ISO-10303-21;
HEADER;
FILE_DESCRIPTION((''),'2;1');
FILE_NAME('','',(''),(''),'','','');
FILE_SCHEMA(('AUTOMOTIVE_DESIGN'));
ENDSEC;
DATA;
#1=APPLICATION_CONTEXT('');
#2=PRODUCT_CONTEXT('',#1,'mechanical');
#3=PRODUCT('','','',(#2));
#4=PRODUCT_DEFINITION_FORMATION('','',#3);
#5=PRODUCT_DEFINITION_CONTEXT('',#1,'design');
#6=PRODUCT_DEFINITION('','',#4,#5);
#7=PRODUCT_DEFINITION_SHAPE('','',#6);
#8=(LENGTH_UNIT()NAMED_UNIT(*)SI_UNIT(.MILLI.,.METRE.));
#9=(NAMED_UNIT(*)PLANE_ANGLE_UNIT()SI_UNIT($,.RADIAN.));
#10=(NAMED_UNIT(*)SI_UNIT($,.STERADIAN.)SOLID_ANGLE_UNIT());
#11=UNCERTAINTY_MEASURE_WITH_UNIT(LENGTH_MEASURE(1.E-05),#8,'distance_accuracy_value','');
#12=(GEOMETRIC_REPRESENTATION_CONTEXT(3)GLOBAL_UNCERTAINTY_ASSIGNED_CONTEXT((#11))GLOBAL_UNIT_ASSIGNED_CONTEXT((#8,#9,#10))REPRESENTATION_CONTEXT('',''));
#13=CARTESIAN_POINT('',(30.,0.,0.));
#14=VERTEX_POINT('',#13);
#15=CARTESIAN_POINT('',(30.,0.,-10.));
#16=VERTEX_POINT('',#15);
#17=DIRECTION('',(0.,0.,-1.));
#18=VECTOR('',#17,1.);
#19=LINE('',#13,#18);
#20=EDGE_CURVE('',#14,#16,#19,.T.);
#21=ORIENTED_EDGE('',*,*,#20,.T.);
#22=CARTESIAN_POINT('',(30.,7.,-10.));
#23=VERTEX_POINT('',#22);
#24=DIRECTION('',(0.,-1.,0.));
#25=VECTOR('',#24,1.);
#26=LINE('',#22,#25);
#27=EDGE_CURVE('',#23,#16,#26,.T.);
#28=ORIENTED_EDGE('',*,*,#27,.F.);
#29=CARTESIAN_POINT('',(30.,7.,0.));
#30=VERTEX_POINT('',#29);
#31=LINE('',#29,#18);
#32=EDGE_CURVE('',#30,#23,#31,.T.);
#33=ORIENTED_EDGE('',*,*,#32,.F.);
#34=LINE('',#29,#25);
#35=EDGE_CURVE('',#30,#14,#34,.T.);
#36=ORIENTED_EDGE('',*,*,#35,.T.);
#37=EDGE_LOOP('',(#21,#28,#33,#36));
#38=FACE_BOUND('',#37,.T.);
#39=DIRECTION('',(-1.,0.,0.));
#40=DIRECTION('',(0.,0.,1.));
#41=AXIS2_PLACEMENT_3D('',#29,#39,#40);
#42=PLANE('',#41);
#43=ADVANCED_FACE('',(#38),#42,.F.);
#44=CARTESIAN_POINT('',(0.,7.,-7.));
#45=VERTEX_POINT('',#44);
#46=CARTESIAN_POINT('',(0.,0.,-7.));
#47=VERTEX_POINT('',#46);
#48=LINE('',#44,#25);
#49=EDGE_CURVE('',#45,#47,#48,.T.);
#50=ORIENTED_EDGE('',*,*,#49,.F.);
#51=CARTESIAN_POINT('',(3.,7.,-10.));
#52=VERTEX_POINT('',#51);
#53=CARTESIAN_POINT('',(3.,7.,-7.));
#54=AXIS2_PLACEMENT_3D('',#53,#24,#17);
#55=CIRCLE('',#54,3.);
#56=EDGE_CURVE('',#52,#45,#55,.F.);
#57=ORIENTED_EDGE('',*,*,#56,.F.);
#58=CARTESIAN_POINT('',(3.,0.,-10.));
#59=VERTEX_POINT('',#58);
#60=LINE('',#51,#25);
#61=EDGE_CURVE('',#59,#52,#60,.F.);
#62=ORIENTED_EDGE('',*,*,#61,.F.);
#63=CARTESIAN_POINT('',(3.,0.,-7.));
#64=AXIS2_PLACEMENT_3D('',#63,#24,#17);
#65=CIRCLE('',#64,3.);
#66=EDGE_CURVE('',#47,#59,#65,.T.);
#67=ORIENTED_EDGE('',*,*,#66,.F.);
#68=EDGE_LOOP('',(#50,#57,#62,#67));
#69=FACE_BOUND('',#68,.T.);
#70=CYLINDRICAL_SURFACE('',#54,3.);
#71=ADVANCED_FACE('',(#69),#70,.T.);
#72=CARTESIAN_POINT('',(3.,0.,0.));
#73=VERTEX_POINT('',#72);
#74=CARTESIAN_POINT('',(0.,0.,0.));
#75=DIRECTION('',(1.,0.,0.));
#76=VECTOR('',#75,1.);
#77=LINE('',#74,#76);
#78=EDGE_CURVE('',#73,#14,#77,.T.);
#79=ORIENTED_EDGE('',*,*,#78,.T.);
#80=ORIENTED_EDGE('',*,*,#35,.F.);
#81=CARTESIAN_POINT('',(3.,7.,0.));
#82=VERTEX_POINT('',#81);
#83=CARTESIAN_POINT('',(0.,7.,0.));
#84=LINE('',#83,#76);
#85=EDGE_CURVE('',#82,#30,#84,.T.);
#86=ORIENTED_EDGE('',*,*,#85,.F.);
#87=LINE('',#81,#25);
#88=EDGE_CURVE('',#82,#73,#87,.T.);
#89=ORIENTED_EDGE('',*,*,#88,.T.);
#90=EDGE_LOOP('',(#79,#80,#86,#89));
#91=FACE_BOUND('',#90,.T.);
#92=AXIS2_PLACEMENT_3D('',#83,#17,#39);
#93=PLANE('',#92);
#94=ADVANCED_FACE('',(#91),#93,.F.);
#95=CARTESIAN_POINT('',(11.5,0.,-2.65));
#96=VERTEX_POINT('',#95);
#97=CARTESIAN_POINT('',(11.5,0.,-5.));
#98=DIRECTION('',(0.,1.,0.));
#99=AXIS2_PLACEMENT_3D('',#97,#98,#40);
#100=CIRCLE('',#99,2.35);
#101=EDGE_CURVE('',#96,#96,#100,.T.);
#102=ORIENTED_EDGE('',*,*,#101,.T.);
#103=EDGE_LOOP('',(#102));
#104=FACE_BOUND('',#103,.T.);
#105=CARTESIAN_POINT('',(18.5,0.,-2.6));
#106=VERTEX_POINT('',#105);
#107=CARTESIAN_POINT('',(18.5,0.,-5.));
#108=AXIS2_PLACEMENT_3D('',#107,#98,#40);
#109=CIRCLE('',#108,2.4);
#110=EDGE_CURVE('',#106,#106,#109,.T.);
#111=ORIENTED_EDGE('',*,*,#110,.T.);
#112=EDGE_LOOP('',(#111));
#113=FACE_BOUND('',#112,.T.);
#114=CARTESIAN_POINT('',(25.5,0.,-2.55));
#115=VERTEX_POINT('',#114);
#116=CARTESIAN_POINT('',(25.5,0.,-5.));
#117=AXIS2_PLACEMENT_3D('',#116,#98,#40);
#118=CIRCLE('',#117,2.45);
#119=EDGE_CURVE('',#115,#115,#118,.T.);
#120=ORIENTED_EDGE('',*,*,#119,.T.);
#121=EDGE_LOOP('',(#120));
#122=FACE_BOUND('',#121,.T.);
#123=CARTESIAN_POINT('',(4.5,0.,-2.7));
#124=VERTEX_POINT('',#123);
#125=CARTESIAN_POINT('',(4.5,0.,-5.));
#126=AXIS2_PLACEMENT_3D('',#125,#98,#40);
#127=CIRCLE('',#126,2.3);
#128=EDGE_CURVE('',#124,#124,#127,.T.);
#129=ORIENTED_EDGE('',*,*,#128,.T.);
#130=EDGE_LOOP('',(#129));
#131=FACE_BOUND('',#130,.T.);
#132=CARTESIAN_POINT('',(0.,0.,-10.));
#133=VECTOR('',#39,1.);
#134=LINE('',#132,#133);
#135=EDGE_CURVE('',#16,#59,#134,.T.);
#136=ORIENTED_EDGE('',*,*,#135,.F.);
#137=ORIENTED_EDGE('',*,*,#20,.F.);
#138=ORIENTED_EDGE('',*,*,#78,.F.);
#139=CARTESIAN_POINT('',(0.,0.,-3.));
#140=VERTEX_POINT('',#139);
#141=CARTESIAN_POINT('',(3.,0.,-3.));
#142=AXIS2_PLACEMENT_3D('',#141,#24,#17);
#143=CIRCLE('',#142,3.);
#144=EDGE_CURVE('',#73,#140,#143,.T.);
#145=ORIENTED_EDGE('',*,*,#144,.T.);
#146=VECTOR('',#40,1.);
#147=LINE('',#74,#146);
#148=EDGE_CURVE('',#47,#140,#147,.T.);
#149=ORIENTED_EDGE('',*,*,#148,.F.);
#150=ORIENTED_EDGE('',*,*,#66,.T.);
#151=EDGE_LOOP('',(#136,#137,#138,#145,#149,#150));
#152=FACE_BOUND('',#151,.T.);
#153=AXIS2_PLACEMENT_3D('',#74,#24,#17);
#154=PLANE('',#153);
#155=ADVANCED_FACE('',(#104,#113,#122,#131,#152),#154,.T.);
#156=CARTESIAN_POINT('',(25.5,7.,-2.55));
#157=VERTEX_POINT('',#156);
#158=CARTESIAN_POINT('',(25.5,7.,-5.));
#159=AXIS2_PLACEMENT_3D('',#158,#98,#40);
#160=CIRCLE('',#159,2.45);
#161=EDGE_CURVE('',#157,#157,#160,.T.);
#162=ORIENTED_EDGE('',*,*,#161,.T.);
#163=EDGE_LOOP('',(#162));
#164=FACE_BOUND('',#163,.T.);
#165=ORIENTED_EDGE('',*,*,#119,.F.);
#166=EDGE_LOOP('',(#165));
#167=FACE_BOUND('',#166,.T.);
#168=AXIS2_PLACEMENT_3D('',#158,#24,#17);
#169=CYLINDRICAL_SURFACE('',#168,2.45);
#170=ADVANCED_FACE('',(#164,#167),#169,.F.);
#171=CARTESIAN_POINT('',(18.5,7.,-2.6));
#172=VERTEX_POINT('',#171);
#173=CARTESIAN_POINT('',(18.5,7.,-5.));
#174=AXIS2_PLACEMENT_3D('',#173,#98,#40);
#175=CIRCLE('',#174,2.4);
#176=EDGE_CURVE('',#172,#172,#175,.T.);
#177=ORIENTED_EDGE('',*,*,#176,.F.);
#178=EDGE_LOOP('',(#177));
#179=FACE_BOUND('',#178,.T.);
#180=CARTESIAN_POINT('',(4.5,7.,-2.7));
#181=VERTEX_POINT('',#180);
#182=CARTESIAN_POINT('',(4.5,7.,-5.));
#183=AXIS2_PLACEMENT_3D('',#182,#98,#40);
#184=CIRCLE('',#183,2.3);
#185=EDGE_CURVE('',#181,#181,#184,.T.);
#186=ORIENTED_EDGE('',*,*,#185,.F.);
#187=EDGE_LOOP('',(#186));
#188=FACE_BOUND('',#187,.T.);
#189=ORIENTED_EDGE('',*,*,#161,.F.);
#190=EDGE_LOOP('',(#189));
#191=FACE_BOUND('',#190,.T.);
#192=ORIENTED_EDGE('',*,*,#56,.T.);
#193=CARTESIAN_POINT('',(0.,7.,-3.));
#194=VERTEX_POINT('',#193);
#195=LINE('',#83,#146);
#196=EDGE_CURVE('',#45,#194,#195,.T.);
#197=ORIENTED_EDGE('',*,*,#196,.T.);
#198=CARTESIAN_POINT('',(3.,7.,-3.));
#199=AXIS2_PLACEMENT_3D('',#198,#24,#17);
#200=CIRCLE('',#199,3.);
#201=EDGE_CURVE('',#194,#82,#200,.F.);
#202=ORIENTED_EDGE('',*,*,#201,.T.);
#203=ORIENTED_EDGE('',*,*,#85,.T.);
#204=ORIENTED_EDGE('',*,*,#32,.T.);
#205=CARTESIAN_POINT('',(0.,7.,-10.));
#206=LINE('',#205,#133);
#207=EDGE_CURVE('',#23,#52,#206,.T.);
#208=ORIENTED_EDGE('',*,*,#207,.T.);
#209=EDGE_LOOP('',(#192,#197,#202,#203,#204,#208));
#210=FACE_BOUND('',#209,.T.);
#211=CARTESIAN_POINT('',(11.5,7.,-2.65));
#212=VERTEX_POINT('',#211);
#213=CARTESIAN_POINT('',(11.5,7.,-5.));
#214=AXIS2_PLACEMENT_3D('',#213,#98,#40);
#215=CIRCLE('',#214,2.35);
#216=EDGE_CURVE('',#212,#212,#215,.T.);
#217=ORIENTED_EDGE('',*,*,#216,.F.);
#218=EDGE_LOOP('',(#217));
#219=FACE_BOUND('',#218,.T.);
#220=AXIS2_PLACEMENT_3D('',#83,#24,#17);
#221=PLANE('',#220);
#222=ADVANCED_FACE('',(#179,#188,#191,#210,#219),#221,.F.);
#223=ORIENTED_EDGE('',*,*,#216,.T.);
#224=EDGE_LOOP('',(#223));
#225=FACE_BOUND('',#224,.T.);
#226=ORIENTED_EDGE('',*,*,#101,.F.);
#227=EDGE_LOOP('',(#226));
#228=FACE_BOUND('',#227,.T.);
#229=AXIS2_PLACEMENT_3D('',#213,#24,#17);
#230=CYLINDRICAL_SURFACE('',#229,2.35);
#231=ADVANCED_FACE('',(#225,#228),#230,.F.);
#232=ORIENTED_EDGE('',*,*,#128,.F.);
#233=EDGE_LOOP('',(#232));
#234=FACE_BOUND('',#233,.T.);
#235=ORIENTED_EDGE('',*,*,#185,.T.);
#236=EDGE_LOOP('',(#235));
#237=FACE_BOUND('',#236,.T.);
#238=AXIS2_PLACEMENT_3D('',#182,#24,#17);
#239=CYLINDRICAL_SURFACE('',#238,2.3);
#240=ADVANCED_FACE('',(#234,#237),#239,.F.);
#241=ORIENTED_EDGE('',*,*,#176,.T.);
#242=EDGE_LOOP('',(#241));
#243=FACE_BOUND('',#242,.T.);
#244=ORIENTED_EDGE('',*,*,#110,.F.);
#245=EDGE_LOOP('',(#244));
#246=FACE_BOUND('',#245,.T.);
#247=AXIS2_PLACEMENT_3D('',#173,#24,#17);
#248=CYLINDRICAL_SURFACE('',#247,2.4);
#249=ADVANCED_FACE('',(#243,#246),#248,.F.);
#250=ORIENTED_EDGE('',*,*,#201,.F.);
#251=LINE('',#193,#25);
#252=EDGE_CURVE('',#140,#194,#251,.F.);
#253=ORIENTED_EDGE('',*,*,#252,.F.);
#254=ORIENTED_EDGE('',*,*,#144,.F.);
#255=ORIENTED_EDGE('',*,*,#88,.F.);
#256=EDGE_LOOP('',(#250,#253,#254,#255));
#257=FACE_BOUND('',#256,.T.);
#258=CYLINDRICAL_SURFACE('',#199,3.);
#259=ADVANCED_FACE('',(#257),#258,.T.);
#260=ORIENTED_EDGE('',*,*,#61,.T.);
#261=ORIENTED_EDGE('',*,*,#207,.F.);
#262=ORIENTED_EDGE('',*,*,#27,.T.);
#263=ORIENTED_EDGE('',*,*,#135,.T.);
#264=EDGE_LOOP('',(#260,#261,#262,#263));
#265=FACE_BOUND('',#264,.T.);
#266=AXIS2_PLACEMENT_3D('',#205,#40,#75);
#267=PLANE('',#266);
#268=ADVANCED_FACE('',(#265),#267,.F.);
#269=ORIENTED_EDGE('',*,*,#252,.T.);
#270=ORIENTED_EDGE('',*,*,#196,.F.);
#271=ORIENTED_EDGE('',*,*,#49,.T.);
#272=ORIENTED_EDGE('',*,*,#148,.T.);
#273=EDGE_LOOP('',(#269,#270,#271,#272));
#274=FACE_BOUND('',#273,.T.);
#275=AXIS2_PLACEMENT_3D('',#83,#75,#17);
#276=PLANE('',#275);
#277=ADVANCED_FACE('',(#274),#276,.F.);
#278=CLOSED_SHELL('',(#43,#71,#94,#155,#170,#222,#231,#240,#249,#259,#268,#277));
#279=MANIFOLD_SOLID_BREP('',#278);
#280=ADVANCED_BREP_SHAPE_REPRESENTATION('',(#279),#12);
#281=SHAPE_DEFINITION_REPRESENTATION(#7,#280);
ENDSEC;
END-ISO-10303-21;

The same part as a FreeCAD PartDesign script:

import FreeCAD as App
import Part
import Sketcher
Q = App.Units.Quantity


def edges_at(feature, points):
    """Names of the edges that pass closest to the given points."""
    edges = feature.Shape.Edges
    near = lambda p: min(range(len(edges)), key=lambda i: edges[i].distToShape(Part.Vertex(*p))[0])
    return sorted({f"Edge{near(p) + 1}" for p in points})


def add_polygon(sketch, points):
    """Adds a closed chain of lines whose ends are joined by coincident constraints."""
    first, n = sketch.GeometryCount, len(points)
    for a, b in zip(points, points[1:] + points[:1]):
        sketch.addGeometry(Part.LineSegment(App.Vector(*a, 0), App.Vector(*b, 0)), False)
    for i in range(n):
        sketch.addConstraint(Sketcher.Constraint("Coincident", first + i, 2, first + (i + 1) % n, 1))

doc = App.newDocument("Part")
body = doc.addObject("PartDesign::Body", "Body")

sketch1 = body.newObject("Sketcher::SketchObject", "Sketch")
sketch1.AttachmentSupport = (doc.getObject("XZ_Plane"), [""])
sketch1.MapMode = "FlatFace"
add_polygon(sketch1, [(0, -10), (0, 0), (30, 0), (30, -10)])
sketch1.addGeometry(Part.Circle(App.Vector(4.5, -5, 0), App.Vector(0, 0, 1), 2.3), False)
sketch1.addGeometry(Part.Circle(App.Vector(11.5, -5, 0), App.Vector(0, 0, 1), 2.4), False)
sketch1.addGeometry(Part.Circle(App.Vector(18.5, -5, 0), App.Vector(0, 0, 1), 2.4), False)
sketch1.addGeometry(Part.Circle(App.Vector(25.5, -5, 0), App.Vector(0, 0, 1), 2.5), False)
sketch1.addConstraint([
    Sketcher.Constraint("Vertical", 0),
    Sketcher.Constraint("Horizontal", 1),
    Sketcher.Constraint("Vertical", 2),
    Sketcher.Constraint("Horizontal", 3),
    Sketcher.Constraint("Coincident", 0, 2, -1, 1),
    Sketcher.Constraint("Horizontal", 4, 3, 5, 3),
    Sketcher.Constraint("Horizontal", 5, 3, 6, 3),
    Sketcher.Constraint("Horizontal", 6, 3, 7, 3),
    Sketcher.Constraint("Diameter", 4, Q("4.6 mm")),
    Sketcher.Constraint("Diameter", 5, Q("4.7 mm")),
    Sketcher.Constraint("Diameter", 6, Q("4.8 mm")),
    Sketcher.Constraint("Diameter", 7, Q("4.9 mm")),
    Sketcher.Constraint("DistanceX", 1, 1, 1, 2, Q("30 mm")),
    Sketcher.Constraint("DistanceY", 0, 1, 0, 2, Q("10 mm")),
    Sketcher.Constraint("DistanceY", 4, 3, -1, 1, Q("5 mm")),
    Sketcher.Constraint("DistanceX", 4, 3, 5, 3, Q("7 mm")),
    Sketcher.Constraint("DistanceX", 5, 3, 6, 3, Q("7 mm")),
    Sketcher.Constraint("DistanceX", 6, 3, 7, 3, Q("7 mm")),
    Sketcher.Constraint("DistanceX", -1, 1, 4, 3, Q("4.5 mm")),
])
pad1 = body.newObject("PartDesign::Pad", "Pad")
pad1.Profile = sketch1
pad1.Length = 7
pad1.Reversed = True
doc.recompute()

fillet = body.newObject("PartDesign::Fillet", "Fillet")
fillet.Base = (pad1, edges_at(pad1, [(0, 3.5, -10), (0, 3.5, 0)]))
fillet.Radius = 3

doc.recompute()
